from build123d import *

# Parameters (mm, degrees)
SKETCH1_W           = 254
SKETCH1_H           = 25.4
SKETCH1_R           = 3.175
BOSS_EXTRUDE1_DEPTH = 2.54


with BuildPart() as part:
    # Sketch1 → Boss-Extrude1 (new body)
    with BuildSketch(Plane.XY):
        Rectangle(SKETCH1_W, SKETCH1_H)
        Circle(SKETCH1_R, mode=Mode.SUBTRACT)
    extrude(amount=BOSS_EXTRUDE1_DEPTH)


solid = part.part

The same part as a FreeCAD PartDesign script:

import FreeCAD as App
import Part
import Sketcher
Q = App.Units.Quantity


def add_polygon(sketch, points):
    """Adds a closed chain of lines whose ends are joined by coincident constraints."""
    first, n = sketch.GeometryCount, len(points)
    for a, b in zip(points, points[1:] + points[:1]):
        sketch.addGeometry(Part.LineSegment(App.Vector(*a, 0), App.Vector(*b, 0)), False)
    for i in range(n):
        sketch.addConstraint(Sketcher.Constraint("Coincident", first + i, 2, first + (i + 1) % n, 1))

doc = App.newDocument("Part")
body = doc.addObject("PartDesign::Body", "Body")

sketch1 = body.newObject("Sketcher::SketchObject", "Sketch")
sketch1.AttachmentSupport = (doc.getObject("XY_Plane"), [""])
sketch1.MapMode = "FlatFace"
add_polygon(sketch1, [(-127, 12.7), (-127, -12.7), (127, -12.7), (127, 12.7)])
sketch1.addGeometry(Part.Circle(App.Vector(0, 0, 0), App.Vector(0, 0, 1), 3.175), False)
sketch1.addConstraint([
    Sketcher.Constraint("Vertical", 0),
    Sketcher.Constraint("Horizontal", 1),
    Sketcher.Constraint("Vertical", 2),
    Sketcher.Constraint("Horizontal", 3),
    Sketcher.Constraint("Coincident", 4, 3, -1, 1),
    Sketcher.Constraint("Symmetric", 0, 2, 2, 2, -1, 1),
    Sketcher.Constraint("Diameter", 4, Q("0.25 in")),
    Sketcher.Constraint("DistanceX", 1, 1, 1, 2, Q("10 in")),
    Sketcher.Constraint("DistanceY", 0, 2, 0, 1, Q("1 in")),
])
pad1 = body.newObject("PartDesign::Pad", "Pad")
pad1.Profile = sketch1
pad1.Length = Q("0.1 in")

doc.recompute()
